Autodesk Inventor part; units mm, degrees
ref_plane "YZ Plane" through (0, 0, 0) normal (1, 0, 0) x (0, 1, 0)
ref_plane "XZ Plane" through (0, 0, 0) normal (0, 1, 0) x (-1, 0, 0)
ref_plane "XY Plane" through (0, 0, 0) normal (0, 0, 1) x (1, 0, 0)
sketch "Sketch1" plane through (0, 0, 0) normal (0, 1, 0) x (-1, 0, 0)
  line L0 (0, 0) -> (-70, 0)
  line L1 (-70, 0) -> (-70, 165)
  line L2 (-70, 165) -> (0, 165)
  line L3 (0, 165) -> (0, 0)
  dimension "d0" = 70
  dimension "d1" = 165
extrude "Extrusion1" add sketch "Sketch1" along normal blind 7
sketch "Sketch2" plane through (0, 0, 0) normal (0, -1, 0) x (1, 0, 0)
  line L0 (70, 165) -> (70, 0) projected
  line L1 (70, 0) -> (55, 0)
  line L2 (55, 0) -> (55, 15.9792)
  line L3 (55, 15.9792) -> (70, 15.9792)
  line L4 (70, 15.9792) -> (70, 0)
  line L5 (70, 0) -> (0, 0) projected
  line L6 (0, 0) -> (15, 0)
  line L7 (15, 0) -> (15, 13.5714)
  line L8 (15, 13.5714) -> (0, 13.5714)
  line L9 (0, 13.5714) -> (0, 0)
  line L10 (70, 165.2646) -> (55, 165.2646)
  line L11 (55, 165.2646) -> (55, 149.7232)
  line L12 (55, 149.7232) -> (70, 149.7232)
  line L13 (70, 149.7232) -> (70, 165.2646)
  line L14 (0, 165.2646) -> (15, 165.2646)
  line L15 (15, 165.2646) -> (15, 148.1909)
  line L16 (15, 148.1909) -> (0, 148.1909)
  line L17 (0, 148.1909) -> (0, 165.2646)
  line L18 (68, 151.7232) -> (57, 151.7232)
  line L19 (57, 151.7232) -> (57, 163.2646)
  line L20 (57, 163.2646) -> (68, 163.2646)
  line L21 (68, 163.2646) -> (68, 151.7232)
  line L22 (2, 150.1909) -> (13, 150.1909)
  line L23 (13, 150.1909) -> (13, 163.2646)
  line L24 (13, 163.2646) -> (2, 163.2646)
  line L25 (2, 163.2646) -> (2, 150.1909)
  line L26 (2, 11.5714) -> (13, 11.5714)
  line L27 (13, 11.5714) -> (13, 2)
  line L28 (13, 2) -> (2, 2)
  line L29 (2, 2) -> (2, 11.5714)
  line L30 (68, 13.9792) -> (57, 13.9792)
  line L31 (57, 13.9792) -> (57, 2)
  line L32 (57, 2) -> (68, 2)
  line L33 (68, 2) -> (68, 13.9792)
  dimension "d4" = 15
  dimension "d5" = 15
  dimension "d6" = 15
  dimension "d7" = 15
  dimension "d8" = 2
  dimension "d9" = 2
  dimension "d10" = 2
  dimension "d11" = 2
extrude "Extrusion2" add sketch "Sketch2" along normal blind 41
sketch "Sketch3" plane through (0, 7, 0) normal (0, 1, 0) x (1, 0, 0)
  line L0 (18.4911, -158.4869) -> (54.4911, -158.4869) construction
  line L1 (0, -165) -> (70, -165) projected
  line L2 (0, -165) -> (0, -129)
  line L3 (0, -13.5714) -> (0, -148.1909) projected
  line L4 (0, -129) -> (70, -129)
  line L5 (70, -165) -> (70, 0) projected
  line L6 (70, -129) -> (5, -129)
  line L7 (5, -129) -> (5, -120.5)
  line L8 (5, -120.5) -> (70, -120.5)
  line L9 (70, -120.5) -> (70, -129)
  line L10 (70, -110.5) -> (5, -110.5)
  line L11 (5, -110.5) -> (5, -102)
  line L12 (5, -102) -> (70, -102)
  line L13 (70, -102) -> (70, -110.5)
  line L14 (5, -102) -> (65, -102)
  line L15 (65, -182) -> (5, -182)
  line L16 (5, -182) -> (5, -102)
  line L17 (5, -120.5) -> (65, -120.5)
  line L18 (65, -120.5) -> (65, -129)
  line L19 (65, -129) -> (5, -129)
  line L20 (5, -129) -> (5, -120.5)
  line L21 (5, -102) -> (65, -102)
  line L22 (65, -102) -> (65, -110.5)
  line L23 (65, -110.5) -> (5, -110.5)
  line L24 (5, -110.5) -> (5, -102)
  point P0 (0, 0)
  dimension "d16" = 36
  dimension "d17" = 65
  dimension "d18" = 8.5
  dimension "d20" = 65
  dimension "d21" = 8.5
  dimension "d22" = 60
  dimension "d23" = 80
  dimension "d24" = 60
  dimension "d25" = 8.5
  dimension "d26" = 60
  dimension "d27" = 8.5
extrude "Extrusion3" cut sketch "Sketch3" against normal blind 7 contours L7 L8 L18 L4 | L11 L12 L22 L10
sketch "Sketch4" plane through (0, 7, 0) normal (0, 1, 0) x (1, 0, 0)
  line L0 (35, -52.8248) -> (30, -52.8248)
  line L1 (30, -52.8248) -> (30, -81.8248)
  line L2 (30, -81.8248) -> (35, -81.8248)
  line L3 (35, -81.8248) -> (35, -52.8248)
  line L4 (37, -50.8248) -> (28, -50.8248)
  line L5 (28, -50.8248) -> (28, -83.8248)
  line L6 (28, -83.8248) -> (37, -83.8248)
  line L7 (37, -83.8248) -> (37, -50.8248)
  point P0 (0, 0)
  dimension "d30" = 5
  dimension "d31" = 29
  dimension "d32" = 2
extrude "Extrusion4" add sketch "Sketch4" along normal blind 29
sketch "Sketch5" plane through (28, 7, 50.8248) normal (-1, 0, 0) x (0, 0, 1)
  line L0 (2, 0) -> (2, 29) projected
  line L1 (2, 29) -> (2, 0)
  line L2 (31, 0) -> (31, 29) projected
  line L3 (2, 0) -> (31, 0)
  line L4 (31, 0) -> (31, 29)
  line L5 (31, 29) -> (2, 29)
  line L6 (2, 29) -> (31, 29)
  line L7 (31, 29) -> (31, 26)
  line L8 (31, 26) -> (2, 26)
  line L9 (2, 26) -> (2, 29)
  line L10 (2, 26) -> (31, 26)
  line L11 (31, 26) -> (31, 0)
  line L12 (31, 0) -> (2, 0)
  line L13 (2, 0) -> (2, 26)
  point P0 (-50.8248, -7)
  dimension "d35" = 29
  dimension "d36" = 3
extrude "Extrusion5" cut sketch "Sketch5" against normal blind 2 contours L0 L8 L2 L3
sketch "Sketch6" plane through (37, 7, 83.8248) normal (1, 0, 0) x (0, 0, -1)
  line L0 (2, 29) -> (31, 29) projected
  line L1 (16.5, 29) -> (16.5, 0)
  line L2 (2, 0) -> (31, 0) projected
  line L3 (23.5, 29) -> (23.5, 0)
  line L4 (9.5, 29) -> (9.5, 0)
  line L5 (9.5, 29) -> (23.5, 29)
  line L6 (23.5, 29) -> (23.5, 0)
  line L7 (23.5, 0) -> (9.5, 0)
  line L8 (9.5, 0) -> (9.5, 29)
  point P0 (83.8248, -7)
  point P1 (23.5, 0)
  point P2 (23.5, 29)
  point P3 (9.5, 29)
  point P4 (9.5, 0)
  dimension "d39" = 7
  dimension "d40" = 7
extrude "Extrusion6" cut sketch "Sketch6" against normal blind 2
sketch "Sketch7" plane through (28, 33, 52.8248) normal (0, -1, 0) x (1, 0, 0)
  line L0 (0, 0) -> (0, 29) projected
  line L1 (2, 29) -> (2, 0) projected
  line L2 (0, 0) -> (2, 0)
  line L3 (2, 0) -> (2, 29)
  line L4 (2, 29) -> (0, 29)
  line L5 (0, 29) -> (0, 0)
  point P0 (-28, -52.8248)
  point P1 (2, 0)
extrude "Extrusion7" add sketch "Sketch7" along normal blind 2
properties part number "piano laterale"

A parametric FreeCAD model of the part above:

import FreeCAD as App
import Part
import Sketcher
from FreeCAD import Vector
Q = App.Units.Quantity

doc = App.newDocument("Part")
body = doc.addObject("PartDesign::Body", "Body")

# Sketch on XZ plane
sketch1 = body.newObject("Sketcher::SketchObject", "Sketch")
sketch1.AttachmentSupport = (doc.getObject("XZ_Plane"), [""])
sketch1.MapMode = "FlatFace"
sketch1.addGeometry([
    Part.LineSegment(Vector(70, 0, 0), Vector(0, 0, 0)),
    Part.LineSegment(Vector(0, 0, 0), Vector(0, 165, 0)),
    Part.LineSegment(Vector(0, 165, 0), Vector(70, 165, 0)),
    Part.LineSegment(Vector(70, 165, 0), Vector(70, 0, 0)),
], False)
sketch1.addConstraint([
    Sketcher.Constraint("Coincident", 0, 2, 1, 1),
    Sketcher.Constraint("Coincident", 1, 2, 2, 1),
    Sketcher.Constraint("Coincident", 2, 2, 3, 1),
    Sketcher.Constraint("Coincident", 3, 2, 0, 1),
    Sketcher.Constraint("Horizontal", 0),
    Sketcher.Constraint("Vertical", 1),
    Sketcher.Constraint("Horizontal", 2),
    Sketcher.Constraint("Vertical", 3),
    Sketcher.Constraint("Coincident", 0, 2, -1, 1),
    Sketcher.Constraint("DistanceX", 0, 2, 0, 1, Q("70 mm")),
    Sketcher.Constraint("DistanceY", 1, 1, 1, 2, Q("165 mm")),
])
pad1 = body.newObject("PartDesign::Pad", "Pad")
pad1.Profile = sketch1
pad1.Length = 7
pad1.Reversed = True

# Sketch on XZ plane
sketch2 = body.newObject("Sketcher::SketchObject", "Sketch001")
sketch2.AttachmentSupport = (doc.getObject("XZ_Plane"), [""])
sketch2.MapMode = "FlatFace"
sketch2.addGeometry([
    Part.LineSegment(Vector(0, 0, 0), Vector(15, 0, 0)),  # 0
    Part.LineSegment(Vector(15, 0, 0), Vector(15, 13.5714, 0)),  # 1
    Part.LineSegment(Vector(15, 13.5714, 0), Vector(0, 13.5714, 0)),  # 2
    Part.LineSegment(Vector(0, 13.5714, 0), Vector(0, 0, 0)),  # 3
    Part.LineSegment(Vector(2, 2, 0), Vector(2, 11.5714, 0)),  # 4
    Part.LineSegment(Vector(2, 11.5714, 0), Vector(13, 11.5714, 0)),  # 5
    Part.LineSegment(Vector(13, 11.5714, 0), Vector(13, 2, 0)),  # 6
    Part.LineSegment(Vector(13, 2, 0), Vector(2, 2, 0)),  # 7
    Part.LineSegment(Vector(70, 0, 0), Vector(70, 15.9792, 0)),  # 8
    Part.LineSegment(Vector(70, 15.9792, 0), Vector(55, 15.9792, 0)),  # 9
    Part.LineSegment(Vector(55, 15.9792, 0), Vector(55, 0, 0)),  # 10
    Part.LineSegment(Vector(55, 0, 0), Vector(70, 0, 0)),  # 11
    Part.LineSegment(Vector(57, 13.9792, 0), Vector(68, 13.9792, 0)),  # 12
    Part.LineSegment(Vector(68, 13.9792, 0), Vector(68, 2, 0)),  # 13
    Part.LineSegment(Vector(68, 2, 0), Vector(57, 2, 0)),  # 14
    Part.LineSegment(Vector(57, 2, 0), Vector(57, 13.9792, 0)),  # 15
    Part.LineSegment(Vector(70, 149.7232, 0), Vector(70, 165.2646, 0)),  # 16
    Part.LineSegment(Vector(70, 165.2646, 0), Vector(55, 165.2646, 0)),  # 17
    Part.LineSegment(Vector(55, 165.2646, 0), Vector(55, 149.7232, 0)),  # 18
    Part.LineSegment(Vector(55, 149.7232, 0), Vector(70, 149.7232, 0)),  # 19
    Part.LineSegment(Vector(68, 163.2646, 0), Vector(68, 151.7232, 0)),  # 20
    Part.LineSegment(Vector(68, 151.7232, 0), Vector(57, 151.7232, 0)),  # 21
    Part.LineSegment(Vector(57, 151.7232, 0), Vector(57, 163.2646, 0)),  # 22
    Part.LineSegment(Vector(57, 163.2646, 0), Vector(68, 163.2646, 0)),  # 23
    Part.LineSegment(Vector(15, 165.2646, 0), Vector(0, 165.2646, 0)),  # 24
    Part.LineSegment(Vector(0, 165.2646, 0), Vector(0, 148.1909, 0)),  # 25
    Part.LineSegment(Vector(0, 148.1909, 0), Vector(15, 148.1909, 0)),  # 26
    Part.LineSegment(Vector(15, 148.1909, 0), Vector(15, 165.2646, 0)),  # 27
    Part.LineSegment(Vector(13, 150.1909, 0), Vector(2, 150.1909, 0)),  # 28
    Part.LineSegment(Vector(2, 150.1909, 0), Vector(2, 163.2646, 0)),  # 29
    Part.LineSegment(Vector(2, 163.2646, 0), Vector(13, 163.2646, 0)),  # 30
    Part.LineSegment(Vector(13, 163.2646, 0), Vector(13, 150.1909, 0)),  # 31
], False)
sketch2.addConstraint([
    Sketcher.Constraint("Coincident", 0, 2, 1, 1),
    Sketcher.Constraint("Coincident", 1, 2, 2, 1),
    Sketcher.Constraint("Coincident", 2, 2, 3, 1),
    Sketcher.Constraint("Coincident", 3, 2, 0, 1),
    Sketcher.Constraint("Coincident", 4, 2, 5, 1),
    Sketcher.Constraint("Coincident", 5, 2, 6, 1),
    Sketcher.Constraint("Coincident", 6, 2, 7, 1),
    Sketcher.Constraint("Coincident", 7, 2, 4, 1),
    Sketcher.Constraint("Coincident", 8, 2, 9, 1),
    Sketcher.Constraint("Coincident", 9, 2, 10, 1),
    Sketcher.Constraint("Coincident", 10, 2, 11, 1),
    Sketcher.Constraint("Coincident", 11, 2, 8, 1),
    Sketcher.Constraint("Coincident", 12, 2, 13, 1),
    Sketcher.Constraint("Coincident", 13, 2, 14, 1),
    Sketcher.Constraint("Coincident", 14, 2, 15, 1),
    Sketcher.Constraint("Coincident", 15, 2, 12, 1),
    Sketcher.Constraint("Coincident", 16, 2, 17, 1),
    Sketcher.Constraint("Coincident", 17, 2, 18, 1),
    Sketcher.Constraint("Coincident", 18, 2, 19, 1),
    Sketcher.Constraint("Coincident", 19, 2, 16, 1),
    Sketcher.Constraint("Coincident", 20, 2, 21, 1),
    Sketcher.Constraint("Coincident", 21, 2, 22, 1),
    Sketcher.Constraint("Coincident", 22, 2, 23, 1),
    Sketcher.Constraint("Coincident", 23, 2, 20, 1),
    Sketcher.Constraint("Coincident", 24, 2, 25, 1),
    Sketcher.Constraint("Coincident", 25, 2, 26, 1),
    Sketcher.Constraint("Coincident", 26, 2, 27, 1),
    Sketcher.Constraint("Coincident", 27, 2, 24, 1),
    Sketcher.Constraint("Coincident", 28, 2, 29, 1),
    Sketcher.Constraint("Coincident", 29, 2, 30, 1),
    Sketcher.Constraint("Coincident", 30, 2, 31, 1),
    Sketcher.Constraint("Coincident", 31, 2, 28, 1),
    Sketcher.Constraint("Horizontal", 0),
    Sketcher.Constraint("Vertical", 1),
    Sketcher.Constraint("Horizontal", 2),
    Sketcher.Constraint("Vertical", 3),
    Sketcher.Constraint("Vertical", 4),
    Sketcher.Constraint("Horizontal", 5),
    Sketcher.Constraint("Vertical", 6),
    Sketcher.Constraint("Horizontal", 7),
    Sketcher.Constraint("Vertical", 8),
    Sketcher.Constraint("Horizontal", 9),
    Sketcher.Constraint("Vertical", 10),
    Sketcher.Constraint("Horizontal", 11),
    Sketcher.Constraint("Horizontal", 12),
    Sketcher.Constraint("Vertical", 13),
    Sketcher.Constraint("Horizontal", 14),
    Sketcher.Constraint("Vertical", 15),
    Sketcher.Constraint("Vertical", 16),
    Sketcher.Constraint("Horizontal", 17),
    Sketcher.Constraint("Vertical", 18),
    Sketcher.Constraint("Horizontal", 19),
    Sketcher.Constraint("Vertical", 20),
    Sketcher.Constraint("Horizontal", 21),
    Sketcher.Constraint("Vertical", 22),
    Sketcher.Constraint("Horizontal", 23),
    Sketcher.Constraint("Horizontal", 24),
    Sketcher.Constraint("Vertical", 25),
    Sketcher.Constraint("Horizontal", 26),
    Sketcher.Constraint("Vertical", 27),
    Sketcher.Constraint("Horizontal", 28),
    Sketcher.Constraint("Vertical", 29),
    Sketcher.Constraint("Horizontal", 30),
    Sketcher.Constraint("Vertical", 31),
    Sketcher.Constraint("Coincident", 3, 2, -1, 1),
    Sketcher.Constraint("PointOnObject", 10, 2, -1),
    Sketcher.Constraint("PointOnObject", 24, 2, -2),
    Sketcher.Constraint("Horizontal", 7, 2, 13, 2),
    Sketcher.Constraint("Horizontal", 17, 2, 24, 2),
    Sketcher.Constraint("Horizontal", 23, 2, 29, 2),
    Sketcher.Constraint("Vertical", 11, 2, 16, 2),
    Sketcher.Constraint("Vertical", 10, 2, 17, 2),
    Sketcher.Constraint("Vertical", 13, 2, 20, 2),
    Sketcher.Constraint("Vertical", 15, 2, 21, 2),
    Sketcher.Constraint("Vertical", 1, 2, 26, 2),
    Sketcher.Constraint("Vertical", 7, 2, 28, 2),
    Sketcher.Constraint("Vertical", 6, 2, 30, 2),
    Sketcher.Constraint("Equal", 2, 9),
    Sketcher.Constraint("Equal", 7, 12),
    Sketcher.Constraint("DistanceX", 0, 1, 0, 2, Q("15 mm")),
    Sketcher.Constraint("DistanceX", -1, 1, 4, 2, Q("2 mm")),
    Sketcher.Constraint("DistanceY", -1, 1, 6, 2, Q("2 mm")),
    Sketcher.Constraint("DistanceY", 4, 2, 2, 2, Q("2 mm")),
    Sketcher.Constraint("DistanceX", 5, 2, 1, 2, Q("2 mm")),
    Sketcher.Constraint("DistanceX", 12, 2, 8, 2, Q("2 mm")),
    Sketcher.Constraint("DistanceY", 12, 2, 8, 2, Q("2 mm")),
    Sketcher.Constraint("DistanceY", 19, 2, 20, 2, Q("2 mm")),
    Sketcher.Constraint("DistanceY", 22, 2, 17, 2, Q("2 mm")),
    Sketcher.Constraint("DistanceY", 25, 2, 28, 2, Q("2 mm")),
    Sketcher.Constraint("DistanceX", -1, 1, 8, 2, Q("70 mm")),
    Sketcher.Constraint("DistanceY", 1, 1, 1, 2, Q("13.5714 mm")),
    Sketcher.Constraint("DistanceY", 8, 1, 8, 2, Q("15.9792 mm")),
    Sketcher.Constraint("DistanceY", 16, 1, 16, 2, Q("15.5414 mm")),
    Sketcher.Constraint("DistanceY", 25, 2, 25, 1, Q("17.0737 mm")),
    Sketcher.Constraint("DistanceY", -1, 1, 25, 2, Q("148.191 mm")),
])
pad2 = body.newObject("PartDesign::Pad", "Pad001")
pad2.Profile = sketch2
pad2.Length = 41

# Sketch on XZ plane
sketch3 = body.newObject("Sketcher::SketchObject", "Sketch002")
sketch3.AttachmentSupport = (doc.getObject("XZ_Plane"), [""])
sketch3.MapMode = "FlatFace"
sketch3.AttachmentOffset = App.Placement(Vector(0, 0, -7), App.Rotation())
sketch3.addGeometry([
    Part.LineSegment(Vector(5, 120.5, 0), Vector(5, 129, 0)),  # 0
    Part.LineSegment(Vector(5, 129, 0), Vector(65, 129, 0)),  # 1
    Part.LineSegment(Vector(65, 129, 0), Vector(65, 120.5, 0)),  # 2
    Part.LineSegment(Vector(65, 120.5, 0), Vector(5, 120.5, 0)),  # 3
    Part.LineSegment(Vector(5, 102, 0), Vector(5, 110.5, 0)),  # 4
    Part.LineSegment(Vector(5, 110.5, 0), Vector(65, 110.5, 0)),  # 5
    Part.LineSegment(Vector(65, 110.5, 0), Vector(65, 102, 0)),  # 6
    Part.LineSegment(Vector(65, 102, 0), Vector(5, 102, 0)),  # 7
], False)
sketch3.addConstraint([
    Sketcher.Constraint("Coincident", 0, 2, 1, 1),
    Sketcher.Constraint("Coincident", 1, 2, 2, 1),
    Sketcher.Constraint("Coincident", 2, 2, 3, 1),
    Sketcher.Constraint("Coincident", 3, 2, 0, 1),
    Sketcher.Constraint("Coincident", 4, 2, 5, 1),
    Sketcher.Constraint("Coincident", 5, 2, 6, 1),
    Sketcher.Constraint("Coincident", 6, 2, 7, 1),
    Sketcher.Constraint("Coincident", 7, 2, 4, 1),
    Sketcher.Constraint("Vertical", 0),
    Sketcher.Constraint("Horizontal", 1),
    Sketcher.Constraint("Vertical", 2),
    Sketcher.Constraint("Horizontal", 3),
    Sketcher.Constraint("Vertical", 4),
    Sketcher.Constraint("Horizontal", 5),
    Sketcher.Constraint("Vertical", 6),
    Sketcher.Constraint("Horizontal", 7),
    Sketcher.Constraint("Vertical", 3, 2, 4, 2),
    Sketcher.Constraint("Vertical", 2, 2, 5, 2),
    Sketcher.Constraint("Equal", 2, 4),
    Sketcher.Constraint("DistanceX", 1, 1, 1, 2, Q("60 mm")),
    Sketcher.Constraint("DistanceY", 0, 1, 0, 2, Q("8.5 mm")),
    Sketcher.Constraint("DistanceX", -1, 1, 1, 2, Q("65 mm")),
    Sketcher.Constraint("DistanceY", -1, 1, 0, 2, Q("129 mm")),
    Sketcher.Constraint("DistanceY", -1, 1, 6, 2, Q("102 mm")),
])
pocket1 = body.newObject("PartDesign::Pocket", "Pocket")
pocket1.Profile = sketch3
pocket1.Length = 7
pocket1.Reversed = True

# Sketch on XZ plane
sketch4 = body.newObject("Sketcher::SketchObject", "Sketch003")
sketch4.AttachmentSupport = (doc.getObject("XZ_Plane"), [""])
sketch4.MapMode = "FlatFace"
sketch4.AttachmentOffset = App.Placement(Vector(0, 0, -7), App.Rotation())
sketch4.addGeometry([
    Part.LineSegment(Vector(37, 83.8248, 0), Vector(37, 50.8248, 0)),  # 0
    Part.LineSegment(Vector(37, 50.8248, 0), Vector(28, 50.8248, 0)),  # 1
    Part.LineSegment(Vector(28, 50.8248, 0), Vector(28, 83.8248, 0)),  # 2
    Part.LineSegment(Vector(28, 83.8248, 0), Vector(37, 83.8248, 0)),  # 3
    Part.LineSegment(Vector(30, 52.8248, 0), Vector(35, 52.8248, 0)),  # 4
    Part.LineSegment(Vector(35, 52.8248, 0), Vector(35, 81.8248, 0)),  # 5
    Part.LineSegment(Vector(35, 81.8248, 0), Vector(30, 81.8248, 0)),  # 6
    Part.LineSegment(Vector(30, 81.8248, 0), Vector(30, 52.8248, 0)),  # 7
], False)
sketch4.addConstraint([
    Sketcher.Constraint("Coincident", 0, 2, 1, 1),
    Sketcher.Constraint("Coincident", 1, 2, 2, 1),
    Sketcher.Constraint("Coincident", 2, 2, 3, 1),
    Sketcher.Constraint("Coincident", 3, 2, 0, 1),
    Sketcher.Constraint("Coincident", 4, 2, 5, 1),
    Sketcher.Constraint("Coincident", 5, 2, 6, 1),
    Sketcher.Constraint("Coincident", 6, 2, 7, 1),
    Sketcher.Constraint("Coincident", 7, 2, 4, 1),
    Sketcher.Constraint("Vertical", 0),
    Sketcher.Constraint("Horizontal", 1),
    Sketcher.Constraint("Vertical", 2),
    Sketcher.Constraint("Horizontal", 3),
    Sketcher.Constraint("Horizontal", 4),
    Sketcher.Constraint("Vertical", 5),
    Sketcher.Constraint("Horizontal", 6),
    Sketcher.Constraint("Vertical", 7),
    Sketcher.Constraint("DistanceX", 4, 1, 4, 2, Q("5 mm")),
    Sketcher.Constraint("DistanceY", 5, 1, 5, 2, Q("29 mm")),
    Sketcher.Constraint("DistanceX", 4, 2, 0, 2, Q("2 mm")),
    Sketcher.Constraint("DistanceY", 0, 2, 4, 2, Q("2 mm")),
    Sketcher.Constraint("DistanceY", 5, 2, 3, 2, Q("2 mm")),
    Sketcher.Constraint("DistanceX", 2, 2, 6, 2, Q("2 mm")),
    Sketcher.Constraint("DistanceX", -1, 1, 0, 2, Q("37 mm")),
    Sketcher.Constraint("DistanceY", -1, 1, 0, 2, Q("50.8248 mm")),
])
pad3 = body.newObject("PartDesign::Pad", "Pad002")
pad3.Profile = sketch4
pad3.Length = 29
pad3.Reversed = True

# Sketch on YZ plane
sketch5 = body.newObject("Sketcher::SketchObject", "Sketch004")
sketch5.AttachmentSupport = (doc.getObject("YZ_Plane"), [""])
sketch5.MapMode = "FlatFace"
sketch5.AttachmentOffset = App.Placement(Vector(0, 0, 28), App.Rotation())
sketch5.addGeometry([
    Part.LineSegment(Vector(33, 52.8248, 0), Vector(7, 52.8248, 0)),
    Part.LineSegment(Vector(7, 52.8248, 0), Vector(7, 81.8248, 0)),
    Part.LineSegment(Vector(7, 81.8248, 0), Vector(33, 81.8248, 0)),
    Part.LineSegment(Vector(33, 81.8248, 0), Vector(33, 52.8248, 0)),
], False)
sketch5.addConstraint([
    Sketcher.Constraint("Coincident", 0, 2, 1, 1),
    Sketcher.Constraint("Coincident", 1, 2, 2, 1),
    Sketcher.Constraint("Coincident", 2, 2, 3, 1),
    Sketcher.Constraint("Coincident", 3, 2, 0, 1),
    Sketcher.Constraint("Horizontal", 0),
    Sketcher.Constraint("Vertical", 1),
    Sketcher.Constraint("Horizontal", 2),
    Sketcher.Constraint("Vertical", 3),
    Sketcher.Constraint("DistanceY", 1, 1, 1, 2, Q("29 mm")),
    Sketcher.Constraint("DistanceX", 0, 2, 0, 1, Q("26 mm")),
    Sketcher.Constraint("DistanceX", -1, 1, 0, 2, Q("7 mm")),
    Sketcher.Constraint("DistanceY", -1, 1, 0, 2, Q("52.8248 mm")),
])
pocket2 = body.newObject("PartDesign::Pocket", "Pocket001")
pocket2.Profile = sketch5
pocket2.Length = 2
pocket2.Reversed = True

# Sketch on YZ plane
sketch6 = body.newObject("Sketcher::SketchObject", "Sketch005")
sketch6.AttachmentSupport = (doc.getObject("YZ_Plane"), [""])
sketch6.MapMode = "FlatFace"
sketch6.AttachmentOffset = App.Placement(Vector(0, 0, 37), App.Rotation())
sketch6.addGeometry([
    Part.LineSegment(Vector(36, 74.3248, 0), Vector(7, 74.3248, 0)),
    Part.LineSegment(Vector(7, 74.3248, 0), Vector(7, 60.3248, 0)),
    Part.LineSegment(Vector(7, 60.3248, 0), Vector(36, 60.3248, 0)),
    Part.LineSegment(Vector(36, 60.3248, 0), Vector(36, 74.3248, 0)),
], False)
sketch6.addConstraint([
    Sketcher.Constraint("Coincident", 0, 2, 1, 1),
    Sketcher.Constraint("Coincident", 1, 2, 2, 1),
    Sketcher.Constraint("Coincident", 2, 2, 3, 1),
    Sketcher.Constraint("Coincident", 3, 2, 0, 1),
    Sketcher.Constraint("Horizontal", 0),
    Sketcher.Constraint("Vertical", 1),
    Sketcher.Constraint("Horizontal", 2),
    Sketcher.Constraint("Vertical", 3),
    Sketcher.Constraint("DistanceX", -1, 1, 0, 2, Q("7 mm")),
    Sketcher.Constraint("DistanceX", 0, 2, 0, 1, Q("29 mm")),
    Sketcher.Constraint("DistanceY", 1, 2, 1, 1, Q("14 mm")),
    Sketcher.Constraint("DistanceY", -1, 1, 0, 2, Q("74.3248 mm")),
])
pocket3 = body.newObject("PartDesign::Pocket", "Pocket002")
pocket3.Profile = sketch6
pocket3.Length = 2

# Sketch on XZ plane
sketch7 = body.newObject("Sketcher::SketchObject", "Sketch006")
sketch7.AttachmentSupport = (doc.getObject("XZ_Plane"), [""])
sketch7.MapMode = "FlatFace"
sketch7.AttachmentOffset = App.Placement(Vector(0, 0, -33), App.Rotation())
sketch7.addGeometry([
    Part.LineSegment(Vector(28, 81.8248, 0), Vector(28, 52.8248, 0)),
    Part.LineSegment(Vector(28, 52.8248, 0), Vector(30, 52.8248, 0)),
    Part.LineSegment(Vector(30, 52.8248, 0), Vector(30, 81.8248, 0)),
    Part.LineSegment(Vector(30, 81.8248, 0), Vector(28, 81.8248, 0)),
], False)
sketch7.addConstraint([
    Sketcher.Constraint("Coincident", 0, 2, 1, 1),
    Sketcher.Constraint("Coincident", 1, 2, 2, 1),
    Sketcher.Constraint("Coincident", 2, 2, 3, 1),
    Sketcher.Constraint("Coincident", 3, 2, 0, 1),
    Sketcher.Constraint("Vertical", 0),
    Sketcher.Constraint("Horizontal", 1),
    Sketcher.Constraint("Vertical", 2),
    Sketcher.Constraint("Horizontal", 3),
    Sketcher.Constraint("DistanceX", 1, 1, 1, 2, Q("2 mm")),
    Sketcher.Constraint("DistanceY", 0, 2, 0, 1, Q("29 mm")),
    Sketcher.Constraint("DistanceX", -1, 1, 0, 2, Q("28 mm")),
    Sketcher.Constraint("DistanceY", -1, 1, 0, 2, Q("52.8248 mm")),
])
pad4 = body.newObject("PartDesign::Pad", "Pad003")
pad4.Profile = sketch7
pad4.Length = 2

doc.recompute()
